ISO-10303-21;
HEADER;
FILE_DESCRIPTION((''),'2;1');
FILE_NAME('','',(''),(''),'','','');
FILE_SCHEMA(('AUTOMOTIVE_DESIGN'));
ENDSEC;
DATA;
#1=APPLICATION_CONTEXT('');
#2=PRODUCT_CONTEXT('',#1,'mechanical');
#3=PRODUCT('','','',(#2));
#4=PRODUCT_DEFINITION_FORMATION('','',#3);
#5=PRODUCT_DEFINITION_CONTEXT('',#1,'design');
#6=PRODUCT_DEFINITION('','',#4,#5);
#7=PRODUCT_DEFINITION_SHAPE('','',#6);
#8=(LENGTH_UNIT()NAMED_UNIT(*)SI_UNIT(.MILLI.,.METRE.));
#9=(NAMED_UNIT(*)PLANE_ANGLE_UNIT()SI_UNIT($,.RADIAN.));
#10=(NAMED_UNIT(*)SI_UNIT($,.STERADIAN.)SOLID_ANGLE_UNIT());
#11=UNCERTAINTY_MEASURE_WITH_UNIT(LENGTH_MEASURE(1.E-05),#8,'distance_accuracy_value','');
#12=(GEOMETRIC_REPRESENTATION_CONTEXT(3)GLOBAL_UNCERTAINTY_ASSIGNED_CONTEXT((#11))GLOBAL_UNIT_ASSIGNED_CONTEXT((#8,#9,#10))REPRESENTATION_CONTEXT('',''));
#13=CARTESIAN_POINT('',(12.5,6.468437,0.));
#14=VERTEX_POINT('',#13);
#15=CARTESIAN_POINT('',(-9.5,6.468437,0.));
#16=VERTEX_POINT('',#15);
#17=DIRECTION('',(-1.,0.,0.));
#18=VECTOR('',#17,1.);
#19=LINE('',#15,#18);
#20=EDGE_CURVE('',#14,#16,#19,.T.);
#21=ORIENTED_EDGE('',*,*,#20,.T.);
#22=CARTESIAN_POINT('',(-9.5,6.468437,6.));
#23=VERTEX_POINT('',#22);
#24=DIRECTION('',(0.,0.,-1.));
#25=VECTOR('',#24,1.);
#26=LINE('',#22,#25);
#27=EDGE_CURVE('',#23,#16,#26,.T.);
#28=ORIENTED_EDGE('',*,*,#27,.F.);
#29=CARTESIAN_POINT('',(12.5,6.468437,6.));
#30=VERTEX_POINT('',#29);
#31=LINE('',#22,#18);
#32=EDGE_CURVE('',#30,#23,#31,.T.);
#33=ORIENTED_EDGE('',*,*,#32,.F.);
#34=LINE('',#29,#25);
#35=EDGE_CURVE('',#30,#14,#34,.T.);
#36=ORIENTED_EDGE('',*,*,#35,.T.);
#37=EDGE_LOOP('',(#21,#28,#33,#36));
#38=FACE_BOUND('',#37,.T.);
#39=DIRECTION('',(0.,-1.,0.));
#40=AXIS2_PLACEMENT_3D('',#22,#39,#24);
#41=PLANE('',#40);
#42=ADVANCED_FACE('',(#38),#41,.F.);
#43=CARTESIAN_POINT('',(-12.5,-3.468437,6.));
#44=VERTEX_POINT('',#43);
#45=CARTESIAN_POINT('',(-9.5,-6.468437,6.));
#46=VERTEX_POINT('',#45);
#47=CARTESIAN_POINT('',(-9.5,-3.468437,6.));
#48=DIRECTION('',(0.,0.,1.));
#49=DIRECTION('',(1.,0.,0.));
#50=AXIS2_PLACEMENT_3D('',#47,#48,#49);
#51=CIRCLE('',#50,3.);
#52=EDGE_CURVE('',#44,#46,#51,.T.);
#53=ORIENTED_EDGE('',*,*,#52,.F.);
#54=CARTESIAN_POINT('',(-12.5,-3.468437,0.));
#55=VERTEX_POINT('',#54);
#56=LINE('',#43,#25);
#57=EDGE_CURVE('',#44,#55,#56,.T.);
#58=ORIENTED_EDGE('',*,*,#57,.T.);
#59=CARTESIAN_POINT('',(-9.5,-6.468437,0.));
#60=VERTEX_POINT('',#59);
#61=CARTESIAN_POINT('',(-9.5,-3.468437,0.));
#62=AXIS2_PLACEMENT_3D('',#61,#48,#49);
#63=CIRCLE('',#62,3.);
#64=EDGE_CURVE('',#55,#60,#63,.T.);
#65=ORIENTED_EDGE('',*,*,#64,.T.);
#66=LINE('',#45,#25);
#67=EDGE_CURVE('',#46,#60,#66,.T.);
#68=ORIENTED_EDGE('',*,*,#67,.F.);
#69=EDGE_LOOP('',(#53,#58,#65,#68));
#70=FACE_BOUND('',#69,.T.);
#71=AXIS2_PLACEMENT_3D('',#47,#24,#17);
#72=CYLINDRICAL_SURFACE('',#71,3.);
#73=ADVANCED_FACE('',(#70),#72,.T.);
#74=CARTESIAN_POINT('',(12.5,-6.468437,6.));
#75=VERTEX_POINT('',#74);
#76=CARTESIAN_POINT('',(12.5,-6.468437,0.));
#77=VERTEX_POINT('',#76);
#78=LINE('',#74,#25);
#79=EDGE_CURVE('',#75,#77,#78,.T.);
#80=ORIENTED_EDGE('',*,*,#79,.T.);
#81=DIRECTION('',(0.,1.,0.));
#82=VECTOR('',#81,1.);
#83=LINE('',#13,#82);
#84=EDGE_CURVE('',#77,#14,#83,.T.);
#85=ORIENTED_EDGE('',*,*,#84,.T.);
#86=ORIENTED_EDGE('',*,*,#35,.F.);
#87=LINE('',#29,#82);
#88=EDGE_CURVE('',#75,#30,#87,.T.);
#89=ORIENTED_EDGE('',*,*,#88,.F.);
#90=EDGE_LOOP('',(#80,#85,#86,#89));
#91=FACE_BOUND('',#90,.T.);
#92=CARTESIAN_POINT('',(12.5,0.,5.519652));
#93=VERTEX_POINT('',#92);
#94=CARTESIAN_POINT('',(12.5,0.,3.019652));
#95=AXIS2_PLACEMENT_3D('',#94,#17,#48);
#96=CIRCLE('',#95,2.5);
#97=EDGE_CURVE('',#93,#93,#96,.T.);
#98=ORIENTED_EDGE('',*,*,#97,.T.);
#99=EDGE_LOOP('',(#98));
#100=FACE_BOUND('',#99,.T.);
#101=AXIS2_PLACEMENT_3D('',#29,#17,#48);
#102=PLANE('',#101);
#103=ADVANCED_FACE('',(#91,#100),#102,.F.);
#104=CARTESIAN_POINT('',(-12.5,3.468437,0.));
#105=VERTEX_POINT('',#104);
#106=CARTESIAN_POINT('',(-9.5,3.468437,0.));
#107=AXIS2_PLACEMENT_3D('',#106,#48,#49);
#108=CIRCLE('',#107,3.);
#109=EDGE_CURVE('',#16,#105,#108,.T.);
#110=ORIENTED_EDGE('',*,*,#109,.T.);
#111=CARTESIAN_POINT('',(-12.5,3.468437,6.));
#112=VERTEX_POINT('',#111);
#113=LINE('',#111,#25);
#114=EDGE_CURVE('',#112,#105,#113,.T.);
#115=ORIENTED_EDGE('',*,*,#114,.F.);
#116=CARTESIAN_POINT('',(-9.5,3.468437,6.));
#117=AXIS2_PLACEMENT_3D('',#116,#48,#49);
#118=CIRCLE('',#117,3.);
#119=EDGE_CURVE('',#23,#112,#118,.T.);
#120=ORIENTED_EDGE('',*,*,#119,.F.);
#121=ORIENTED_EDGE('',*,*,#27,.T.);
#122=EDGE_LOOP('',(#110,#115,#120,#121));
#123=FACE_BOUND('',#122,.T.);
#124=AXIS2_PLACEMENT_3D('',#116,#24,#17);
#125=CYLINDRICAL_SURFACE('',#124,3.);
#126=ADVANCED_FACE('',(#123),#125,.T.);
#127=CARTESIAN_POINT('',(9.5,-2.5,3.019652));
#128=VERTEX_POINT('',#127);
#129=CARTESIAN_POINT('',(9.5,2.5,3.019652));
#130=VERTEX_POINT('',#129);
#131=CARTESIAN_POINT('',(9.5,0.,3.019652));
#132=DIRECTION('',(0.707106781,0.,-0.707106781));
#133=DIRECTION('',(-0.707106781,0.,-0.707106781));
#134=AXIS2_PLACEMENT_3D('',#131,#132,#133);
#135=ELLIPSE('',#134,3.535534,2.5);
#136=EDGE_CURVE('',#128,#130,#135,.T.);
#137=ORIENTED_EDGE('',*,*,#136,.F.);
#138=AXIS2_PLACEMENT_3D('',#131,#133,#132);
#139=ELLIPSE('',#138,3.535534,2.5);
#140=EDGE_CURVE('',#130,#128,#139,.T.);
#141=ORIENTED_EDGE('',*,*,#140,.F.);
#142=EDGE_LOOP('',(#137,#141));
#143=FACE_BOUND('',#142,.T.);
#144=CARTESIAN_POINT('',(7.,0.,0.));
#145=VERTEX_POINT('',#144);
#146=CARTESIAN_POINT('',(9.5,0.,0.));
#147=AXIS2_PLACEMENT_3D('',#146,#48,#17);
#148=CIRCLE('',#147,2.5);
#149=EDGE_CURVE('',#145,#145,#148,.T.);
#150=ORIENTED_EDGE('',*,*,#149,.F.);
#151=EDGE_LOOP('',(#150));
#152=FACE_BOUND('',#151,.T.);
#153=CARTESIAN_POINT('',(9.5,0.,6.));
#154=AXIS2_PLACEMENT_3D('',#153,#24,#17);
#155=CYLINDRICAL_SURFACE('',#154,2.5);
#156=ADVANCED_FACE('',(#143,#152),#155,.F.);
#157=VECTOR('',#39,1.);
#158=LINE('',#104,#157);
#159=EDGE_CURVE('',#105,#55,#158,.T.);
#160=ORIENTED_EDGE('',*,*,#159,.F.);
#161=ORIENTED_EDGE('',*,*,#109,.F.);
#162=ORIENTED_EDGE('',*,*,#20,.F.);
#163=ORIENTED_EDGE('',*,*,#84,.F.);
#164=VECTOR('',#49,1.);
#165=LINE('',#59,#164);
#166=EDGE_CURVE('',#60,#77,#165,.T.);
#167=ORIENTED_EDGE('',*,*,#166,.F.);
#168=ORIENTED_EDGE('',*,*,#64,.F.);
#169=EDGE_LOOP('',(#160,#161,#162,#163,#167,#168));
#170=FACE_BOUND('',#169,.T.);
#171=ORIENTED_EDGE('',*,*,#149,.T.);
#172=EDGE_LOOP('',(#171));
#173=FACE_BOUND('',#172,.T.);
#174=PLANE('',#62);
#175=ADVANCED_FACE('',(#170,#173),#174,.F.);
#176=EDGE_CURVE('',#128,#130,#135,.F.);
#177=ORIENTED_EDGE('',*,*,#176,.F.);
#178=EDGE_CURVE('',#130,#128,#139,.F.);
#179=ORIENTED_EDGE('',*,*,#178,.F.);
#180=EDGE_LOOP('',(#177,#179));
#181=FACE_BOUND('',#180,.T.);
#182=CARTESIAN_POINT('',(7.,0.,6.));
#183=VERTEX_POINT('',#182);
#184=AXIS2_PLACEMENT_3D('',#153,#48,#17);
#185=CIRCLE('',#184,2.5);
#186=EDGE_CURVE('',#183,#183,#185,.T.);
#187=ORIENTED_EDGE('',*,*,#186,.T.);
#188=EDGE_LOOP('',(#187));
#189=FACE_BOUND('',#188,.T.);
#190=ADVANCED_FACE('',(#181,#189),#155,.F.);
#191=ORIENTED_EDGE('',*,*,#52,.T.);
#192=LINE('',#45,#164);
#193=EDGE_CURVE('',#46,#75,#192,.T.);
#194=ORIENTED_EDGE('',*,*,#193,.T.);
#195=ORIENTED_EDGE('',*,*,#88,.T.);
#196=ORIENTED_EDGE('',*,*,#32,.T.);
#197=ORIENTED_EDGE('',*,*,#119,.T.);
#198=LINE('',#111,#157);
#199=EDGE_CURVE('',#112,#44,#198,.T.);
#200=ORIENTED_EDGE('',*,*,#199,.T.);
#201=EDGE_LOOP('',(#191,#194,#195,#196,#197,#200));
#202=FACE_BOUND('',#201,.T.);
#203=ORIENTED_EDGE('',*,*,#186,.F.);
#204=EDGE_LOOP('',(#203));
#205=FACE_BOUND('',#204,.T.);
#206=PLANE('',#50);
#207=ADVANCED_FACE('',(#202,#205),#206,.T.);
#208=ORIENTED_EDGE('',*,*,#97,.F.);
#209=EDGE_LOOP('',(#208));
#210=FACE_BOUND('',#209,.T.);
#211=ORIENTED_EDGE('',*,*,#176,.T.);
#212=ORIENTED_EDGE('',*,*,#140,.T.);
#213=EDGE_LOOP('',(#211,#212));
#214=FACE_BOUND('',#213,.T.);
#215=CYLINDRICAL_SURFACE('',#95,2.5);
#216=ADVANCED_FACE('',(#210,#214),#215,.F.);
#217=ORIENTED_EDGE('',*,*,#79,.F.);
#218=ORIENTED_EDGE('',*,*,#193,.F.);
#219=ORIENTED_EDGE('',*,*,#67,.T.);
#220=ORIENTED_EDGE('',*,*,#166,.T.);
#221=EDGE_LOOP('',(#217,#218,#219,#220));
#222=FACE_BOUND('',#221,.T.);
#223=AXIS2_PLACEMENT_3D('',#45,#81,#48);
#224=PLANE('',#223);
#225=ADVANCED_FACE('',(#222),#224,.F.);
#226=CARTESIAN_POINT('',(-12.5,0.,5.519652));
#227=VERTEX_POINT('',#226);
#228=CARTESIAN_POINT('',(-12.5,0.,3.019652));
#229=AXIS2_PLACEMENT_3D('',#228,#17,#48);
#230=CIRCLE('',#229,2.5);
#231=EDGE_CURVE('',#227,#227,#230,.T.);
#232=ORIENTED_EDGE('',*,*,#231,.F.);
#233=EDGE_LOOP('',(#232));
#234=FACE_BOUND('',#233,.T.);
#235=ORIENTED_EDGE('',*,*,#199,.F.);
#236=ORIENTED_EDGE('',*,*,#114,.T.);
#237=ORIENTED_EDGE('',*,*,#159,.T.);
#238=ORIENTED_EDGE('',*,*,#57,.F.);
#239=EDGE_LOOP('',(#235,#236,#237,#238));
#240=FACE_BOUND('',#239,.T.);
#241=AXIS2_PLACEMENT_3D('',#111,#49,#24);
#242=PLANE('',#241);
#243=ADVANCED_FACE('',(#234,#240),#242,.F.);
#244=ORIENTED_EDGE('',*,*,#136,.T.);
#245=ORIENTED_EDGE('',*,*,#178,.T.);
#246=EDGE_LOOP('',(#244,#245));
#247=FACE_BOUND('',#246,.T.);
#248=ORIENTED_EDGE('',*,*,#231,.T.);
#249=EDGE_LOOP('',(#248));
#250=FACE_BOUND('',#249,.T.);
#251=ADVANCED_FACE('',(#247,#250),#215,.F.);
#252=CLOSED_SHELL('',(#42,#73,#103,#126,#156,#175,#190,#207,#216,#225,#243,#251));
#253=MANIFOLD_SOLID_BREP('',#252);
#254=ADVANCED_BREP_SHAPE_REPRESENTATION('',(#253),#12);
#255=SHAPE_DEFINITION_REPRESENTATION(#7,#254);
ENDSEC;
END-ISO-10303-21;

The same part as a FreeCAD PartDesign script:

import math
import FreeCAD as App
import Part
import Sketcher
from FreeCAD import Vector
Q = App.Units.Quantity

doc = App.newDocument("Part")
body = doc.addObject("PartDesign::Body", "Body")

# Sketch on XY plane
sketch1 = body.newObject("Sketcher::SketchObject", "Sketch")
sketch1.AttachmentSupport = (doc.getObject("XY_Plane"), [""])
sketch1.MapMode = "FlatFace"
sketch1.addGeometry(Part.LineSegment(Vector(12.5, 6.5, 0), Vector(-9.5, 6.5, 0)), False)
sketch1.addGeometry(Part.ArcOfCircle(Part.Circle(Vector(-9.5, 3.5, 0), Vector(0, 0, 1), 3), math.radians(90), math.radians(180)), False)
sketch1.addGeometry(Part.LineSegment(Vector(-12.5, 3.5, 0), Vector(-12.5, -3.5, 0)), False)
sketch1.addGeometry(Part.ArcOfCircle(Part.Circle(Vector(-9.5, -3.5, 0), Vector(0, 0, 1), 3), math.radians(180), math.radians(270)), False)
sketch1.addGeometry(Part.LineSegment(Vector(-9.5, -6.5, 0), Vector(12.5, -6.5, 0)), False)
sketch1.addGeometry(Part.LineSegment(Vector(12.5, -6.5, 0), Vector(12.5, 6.5, 0)), False)
sketch1.addGeometry(Part.Circle(Vector(9.5, 0, 0), Vector(0, 0, 1), 2.5), False)
sketch1.addConstraint(Sketcher.Constraint("Tangent", 0, 2, 1, 1))
sketch1.addConstraint(Sketcher.Constraint("Tangent", 1, 2, 2, 1))
sketch1.addConstraint(Sketcher.Constraint("Tangent", 2, 2, 3, 1))
sketch1.addConstraint(Sketcher.Constraint("Tangent", 3, 2, 4, 1))
sketch1.addConstraint(Sketcher.Constraint("Coincident", 4, 2, 5, 1))
sketch1.addConstraint(Sketcher.Constraint("Coincident", 5, 2, 0, 1))
sketch1.addConstraint(Sketcher.Constraint("Horizontal", 0))
sketch1.addConstraint(Sketcher.Constraint("Vertical", 2))
sketch1.addConstraint(Sketcher.Constraint("Horizontal", 4))
sketch1.addConstraint(Sketcher.Constraint("Vertical", 5))
sketch1.addConstraint(Sketcher.Constraint("Equal", 1, 3))
sketch1.addConstraint(Sketcher.Constraint("PointOnObject", 6, 3, -1))
sketch1.addConstraint(Sketcher.Constraint("Diameter", 6, Q("5 mm")))
sketch1.addConstraint(Sketcher.Constraint("Radius", 1, Q("3 mm")))
sketch1.addConstraint(Sketcher.Constraint("DistanceX", 0, 2, 0, 1, Q("22 mm")))
sketch1.addConstraint(Sketcher.Constraint("DistanceX", 1, 3, 6, 3, Q("19 mm")))
sketch1.addConstraint(Sketcher.Constraint("DistanceX", 1, 3, -1, 1, Q("9.5 mm")))
sketch1.addConstraint(Sketcher.Constraint("DistanceY", 2, 2, 2, 1, Q("6.936875 mm")))
sketch1.addConstraint(Sketcher.Constraint("DistanceY", -1, 1, 1, 3, Q("3.468437 mm")))
pad1 = body.newObject("PartDesign::Pad", "Pad")
pad1.Profile = sketch1
pad1.Length = 6

# Sketch on YZ plane
sketch2 = body.newObject("Sketcher::SketchObject", "Sketch001")
sketch2.AttachmentSupport = (doc.getObject("YZ_Plane"), [""])
sketch2.MapMode = "FlatFace"
sketch2.AttachmentOffset = App.Placement(Vector(0, 0, -12.5), App.Rotation())
sketch2.addGeometry(Part.Circle(Vector(0, 3, 0), Vector(0, 0, 1), 2.5), False)
sketch2.addConstraint(Sketcher.Constraint("PointOnObject", 0, 3, -2))
sketch2.addConstraint(Sketcher.Constraint("Diameter", 0, Q("5 mm")))
sketch2.addConstraint(Sketcher.Constraint("DistanceY", -1, 1, 0, 3, Q("3.019652 mm")))
pocket1 = body.newObject("PartDesign::Pocket", "Pocket")
pocket1.Profile = sketch2
pocket1.Type = "ThroughAll"
pocket1.Reversed = True

doc.recompute()
